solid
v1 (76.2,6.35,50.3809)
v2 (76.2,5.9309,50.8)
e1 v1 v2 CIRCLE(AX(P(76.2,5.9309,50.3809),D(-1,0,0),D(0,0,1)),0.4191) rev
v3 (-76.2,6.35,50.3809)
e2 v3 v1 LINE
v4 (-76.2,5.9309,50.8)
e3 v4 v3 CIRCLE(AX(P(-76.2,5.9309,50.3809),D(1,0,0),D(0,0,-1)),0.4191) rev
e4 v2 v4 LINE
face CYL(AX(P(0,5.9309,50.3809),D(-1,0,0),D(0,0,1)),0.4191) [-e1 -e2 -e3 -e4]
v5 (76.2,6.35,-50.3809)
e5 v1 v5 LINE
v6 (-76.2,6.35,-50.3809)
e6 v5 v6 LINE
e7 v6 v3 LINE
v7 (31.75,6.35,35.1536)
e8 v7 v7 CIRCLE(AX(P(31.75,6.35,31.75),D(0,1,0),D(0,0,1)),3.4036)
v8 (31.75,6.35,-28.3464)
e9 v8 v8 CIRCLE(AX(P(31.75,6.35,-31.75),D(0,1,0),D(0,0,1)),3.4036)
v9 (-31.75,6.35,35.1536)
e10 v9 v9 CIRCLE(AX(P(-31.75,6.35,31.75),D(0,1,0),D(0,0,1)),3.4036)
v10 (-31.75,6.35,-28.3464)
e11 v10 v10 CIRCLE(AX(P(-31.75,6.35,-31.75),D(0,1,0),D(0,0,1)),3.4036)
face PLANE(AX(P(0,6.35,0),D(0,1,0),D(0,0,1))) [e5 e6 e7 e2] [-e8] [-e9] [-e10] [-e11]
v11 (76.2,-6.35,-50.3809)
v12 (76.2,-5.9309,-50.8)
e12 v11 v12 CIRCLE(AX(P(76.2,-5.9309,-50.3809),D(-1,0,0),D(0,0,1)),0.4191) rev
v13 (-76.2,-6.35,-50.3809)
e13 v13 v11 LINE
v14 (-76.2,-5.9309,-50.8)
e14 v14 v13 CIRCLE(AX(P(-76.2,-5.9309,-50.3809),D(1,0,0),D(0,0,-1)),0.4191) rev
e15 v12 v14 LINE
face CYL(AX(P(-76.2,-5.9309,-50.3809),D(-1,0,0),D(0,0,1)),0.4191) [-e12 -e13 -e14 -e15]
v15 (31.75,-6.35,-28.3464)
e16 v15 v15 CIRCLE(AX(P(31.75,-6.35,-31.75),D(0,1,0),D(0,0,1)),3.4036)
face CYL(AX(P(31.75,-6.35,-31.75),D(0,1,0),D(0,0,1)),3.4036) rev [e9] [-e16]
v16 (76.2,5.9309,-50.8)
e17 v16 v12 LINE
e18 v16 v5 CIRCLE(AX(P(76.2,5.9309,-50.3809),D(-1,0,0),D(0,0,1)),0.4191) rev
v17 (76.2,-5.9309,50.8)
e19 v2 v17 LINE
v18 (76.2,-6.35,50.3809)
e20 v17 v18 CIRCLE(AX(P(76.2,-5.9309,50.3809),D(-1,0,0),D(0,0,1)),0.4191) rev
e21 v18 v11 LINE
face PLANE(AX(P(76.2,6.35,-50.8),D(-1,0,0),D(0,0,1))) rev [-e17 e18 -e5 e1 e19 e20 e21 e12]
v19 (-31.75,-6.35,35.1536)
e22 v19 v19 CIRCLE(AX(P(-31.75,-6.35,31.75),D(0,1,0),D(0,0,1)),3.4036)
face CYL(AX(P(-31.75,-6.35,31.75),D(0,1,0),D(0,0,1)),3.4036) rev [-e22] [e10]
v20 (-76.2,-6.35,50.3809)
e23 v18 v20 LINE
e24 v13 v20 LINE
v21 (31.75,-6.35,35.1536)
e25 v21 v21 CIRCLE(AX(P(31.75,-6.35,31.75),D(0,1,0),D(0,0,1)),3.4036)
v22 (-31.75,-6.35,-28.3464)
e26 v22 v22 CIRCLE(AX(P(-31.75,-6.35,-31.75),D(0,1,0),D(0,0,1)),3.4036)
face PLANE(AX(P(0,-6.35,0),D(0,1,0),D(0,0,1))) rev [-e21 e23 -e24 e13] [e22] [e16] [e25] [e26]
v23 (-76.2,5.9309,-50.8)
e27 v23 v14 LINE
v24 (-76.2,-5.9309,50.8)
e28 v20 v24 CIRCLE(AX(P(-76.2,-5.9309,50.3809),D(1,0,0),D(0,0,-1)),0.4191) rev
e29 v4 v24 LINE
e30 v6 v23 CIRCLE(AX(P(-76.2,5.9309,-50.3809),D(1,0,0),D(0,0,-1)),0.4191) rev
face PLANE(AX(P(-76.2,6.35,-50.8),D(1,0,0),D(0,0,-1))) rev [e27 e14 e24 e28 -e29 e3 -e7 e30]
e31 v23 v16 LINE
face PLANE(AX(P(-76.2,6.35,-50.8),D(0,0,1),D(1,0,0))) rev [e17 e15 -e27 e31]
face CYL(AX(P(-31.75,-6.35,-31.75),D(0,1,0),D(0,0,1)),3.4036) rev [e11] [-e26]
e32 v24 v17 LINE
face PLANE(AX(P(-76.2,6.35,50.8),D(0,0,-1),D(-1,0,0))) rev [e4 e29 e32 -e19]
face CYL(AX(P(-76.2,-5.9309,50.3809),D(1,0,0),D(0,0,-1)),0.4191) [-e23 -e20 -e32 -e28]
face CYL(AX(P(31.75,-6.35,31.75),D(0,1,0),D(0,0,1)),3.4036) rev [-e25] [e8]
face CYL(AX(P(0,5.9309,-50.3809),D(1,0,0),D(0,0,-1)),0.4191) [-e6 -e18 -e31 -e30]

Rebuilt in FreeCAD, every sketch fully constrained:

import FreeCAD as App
import Part
import Sketcher

V = App.Vector
Q = App.Units.Quantity


def edges_at(feature, points):
    """Names of the edges that pass closest to the given points."""
    edges = feature.Shape.Edges
    near = lambda p: min(range(len(edges)), key=lambda i: edges[i].distToShape(Part.Vertex(*p))[0])
    return sorted({f"Edge{near(p) + 1}" for p in points})

doc = App.newDocument("Part")
params = doc.addObject("Spreadsheet::Sheet", "Params")
for row, (alias, value) in enumerate([
    ("sketch1_width", "6 in"),
    ("sketch1_height", "4 in"),
    ("pad1_length", "0.25 in"),
    ("pad1_length2", "0.25 in"),
    ("fillet_radius", "0.0165 in"),
    ("sketch2_diameter", "0.268 in"),
], start=1):
    params.set(f"A{row}", alias)
    params.set(f"B{row}", "=" + value)
    params.setAlias(f"B{row}", alias)

body = doc.addObject("PartDesign::Body", "Body")

sketch1 = doc.addObject("Sketcher::SketchObject", "Sketch")
body.addObject(sketch1)
sketch1.AttachmentSupport = (doc.XZ_Plane, [""])
sketch1.MapMode = "FlatFace"
sketch1.addGeometry([
    Part.LineSegment(V(-76.2, -50.8, 0), V(-76.2, 50.8, 0)),
    Part.LineSegment(V(-76.2, 50.8, 0), V(76.2, 50.8, 0)),
    Part.LineSegment(V(76.2, 50.8, 0), V(76.2, -50.8, 0)),
    Part.LineSegment(V(76.2, -50.8, 0), V(-76.2, -50.8, 0)),
], False)
sketch1.addConstraint([
    Sketcher.Constraint("Coincident", 0, 2, 1, 1),
    Sketcher.Constraint("Coincident", 1, 2, 2, 1),
    Sketcher.Constraint("Coincident", 2, 2, 3, 1),
    Sketcher.Constraint("Coincident", 3, 2, 0, 1),
    Sketcher.Constraint("Vertical", 0),
    Sketcher.Constraint("Horizontal", 1),
    Sketcher.Constraint("Vertical", 2),
    Sketcher.Constraint("Horizontal", 3),
    Sketcher.Constraint("Symmetric", 0, 2, 2, 2, -1, 1),
    Sketcher.Constraint("DistanceX", 1, 1, 1, 2, Q("6 in")),
    Sketcher.Constraint("DistanceY", 0, 1, 0, 2, Q("4 in")),
])
sketch1.setExpression("Constraints[9]", "Params.sketch1_width")
sketch1.setExpression("Constraints[10]", "Params.sketch1_height")
pad1 = doc.addObject("PartDesign::Pad", "Pad")
body.addObject(pad1)
pad1.Profile = sketch1
pad1.Type = "TwoLengths"
pad1.setExpression("Length", "Params.pad1_length")
pad1.setExpression("Length2", "Params.pad1_length2")
pad1.Reversed = True
doc.recompute()

fillet = doc.addObject("PartDesign::Fillet", "Fillet")
body.addObject(fillet)
fillet.Base = (pad1, edges_at(pad1, [
    (0, -6.35, -50.8),
    (0, -6.35, 50.8),
    (0, 6.35, -50.8),
    (0, 6.35, 50.8),
]))
fillet.setExpression("Radius", "Params.fillet_radius")

sketch2 = doc.addObject("Sketcher::SketchObject", "Sketch001")
body.addObject(sketch2)
sketch2.AttachmentSupport = (doc.XZ_Plane, [""])
sketch2.MapMode = "FlatFace"
sketch2.AttachmentOffset = App.Placement(V(0, 0, -0.25 * 25.4), App.Rotation())
sketch2.addGeometry([
    Part.Circle(V(31.75, -31.75, 0), V(0, 0, 1), 3.4036),
    Part.Circle(V(31.75, 31.75, 0), V(0, 0, 1), 3.4036),
    Part.Circle(V(-31.75, 31.75, 0), V(0, 0, 1), 3.4036),
    Part.Circle(V(-31.75, -31.75, 0), V(0, 0, 1), 3.4036),
], False)
sketch2.addConstraint([
    Sketcher.Constraint("Equal", 0, 1),
    Sketcher.Constraint("Equal", 1, 2),
    Sketcher.Constraint("Equal", 2, 3),
    Sketcher.Constraint("Symmetric", 0, 3, 2, 3, -1, 1),
    Sketcher.Constraint("Symmetric", 1, 3, 3, 3, -1, 1),
    Sketcher.Constraint("Symmetric", 1, 3, 2, 3, -2),
    Sketcher.Constraint("Diameter", 0, Q("0.268 in")),
    Sketcher.Constraint("DistanceY", 0, 3, 1, 3, Q("2.5 in")),
    Sketcher.Constraint("DistanceX", 2, 3, 1, 3, Q("2.5 in")),
])
sketch2.setExpression("Constraints[6]", "Params.sketch2_diameter")
pocket1 = doc.addObject("PartDesign::Pocket", "Pocket")
body.addObject(pocket1)
pocket1.Profile = sketch2
pocket1.Type = "ThroughAll"
pocket1.Reversed = True

doc.recompute()
